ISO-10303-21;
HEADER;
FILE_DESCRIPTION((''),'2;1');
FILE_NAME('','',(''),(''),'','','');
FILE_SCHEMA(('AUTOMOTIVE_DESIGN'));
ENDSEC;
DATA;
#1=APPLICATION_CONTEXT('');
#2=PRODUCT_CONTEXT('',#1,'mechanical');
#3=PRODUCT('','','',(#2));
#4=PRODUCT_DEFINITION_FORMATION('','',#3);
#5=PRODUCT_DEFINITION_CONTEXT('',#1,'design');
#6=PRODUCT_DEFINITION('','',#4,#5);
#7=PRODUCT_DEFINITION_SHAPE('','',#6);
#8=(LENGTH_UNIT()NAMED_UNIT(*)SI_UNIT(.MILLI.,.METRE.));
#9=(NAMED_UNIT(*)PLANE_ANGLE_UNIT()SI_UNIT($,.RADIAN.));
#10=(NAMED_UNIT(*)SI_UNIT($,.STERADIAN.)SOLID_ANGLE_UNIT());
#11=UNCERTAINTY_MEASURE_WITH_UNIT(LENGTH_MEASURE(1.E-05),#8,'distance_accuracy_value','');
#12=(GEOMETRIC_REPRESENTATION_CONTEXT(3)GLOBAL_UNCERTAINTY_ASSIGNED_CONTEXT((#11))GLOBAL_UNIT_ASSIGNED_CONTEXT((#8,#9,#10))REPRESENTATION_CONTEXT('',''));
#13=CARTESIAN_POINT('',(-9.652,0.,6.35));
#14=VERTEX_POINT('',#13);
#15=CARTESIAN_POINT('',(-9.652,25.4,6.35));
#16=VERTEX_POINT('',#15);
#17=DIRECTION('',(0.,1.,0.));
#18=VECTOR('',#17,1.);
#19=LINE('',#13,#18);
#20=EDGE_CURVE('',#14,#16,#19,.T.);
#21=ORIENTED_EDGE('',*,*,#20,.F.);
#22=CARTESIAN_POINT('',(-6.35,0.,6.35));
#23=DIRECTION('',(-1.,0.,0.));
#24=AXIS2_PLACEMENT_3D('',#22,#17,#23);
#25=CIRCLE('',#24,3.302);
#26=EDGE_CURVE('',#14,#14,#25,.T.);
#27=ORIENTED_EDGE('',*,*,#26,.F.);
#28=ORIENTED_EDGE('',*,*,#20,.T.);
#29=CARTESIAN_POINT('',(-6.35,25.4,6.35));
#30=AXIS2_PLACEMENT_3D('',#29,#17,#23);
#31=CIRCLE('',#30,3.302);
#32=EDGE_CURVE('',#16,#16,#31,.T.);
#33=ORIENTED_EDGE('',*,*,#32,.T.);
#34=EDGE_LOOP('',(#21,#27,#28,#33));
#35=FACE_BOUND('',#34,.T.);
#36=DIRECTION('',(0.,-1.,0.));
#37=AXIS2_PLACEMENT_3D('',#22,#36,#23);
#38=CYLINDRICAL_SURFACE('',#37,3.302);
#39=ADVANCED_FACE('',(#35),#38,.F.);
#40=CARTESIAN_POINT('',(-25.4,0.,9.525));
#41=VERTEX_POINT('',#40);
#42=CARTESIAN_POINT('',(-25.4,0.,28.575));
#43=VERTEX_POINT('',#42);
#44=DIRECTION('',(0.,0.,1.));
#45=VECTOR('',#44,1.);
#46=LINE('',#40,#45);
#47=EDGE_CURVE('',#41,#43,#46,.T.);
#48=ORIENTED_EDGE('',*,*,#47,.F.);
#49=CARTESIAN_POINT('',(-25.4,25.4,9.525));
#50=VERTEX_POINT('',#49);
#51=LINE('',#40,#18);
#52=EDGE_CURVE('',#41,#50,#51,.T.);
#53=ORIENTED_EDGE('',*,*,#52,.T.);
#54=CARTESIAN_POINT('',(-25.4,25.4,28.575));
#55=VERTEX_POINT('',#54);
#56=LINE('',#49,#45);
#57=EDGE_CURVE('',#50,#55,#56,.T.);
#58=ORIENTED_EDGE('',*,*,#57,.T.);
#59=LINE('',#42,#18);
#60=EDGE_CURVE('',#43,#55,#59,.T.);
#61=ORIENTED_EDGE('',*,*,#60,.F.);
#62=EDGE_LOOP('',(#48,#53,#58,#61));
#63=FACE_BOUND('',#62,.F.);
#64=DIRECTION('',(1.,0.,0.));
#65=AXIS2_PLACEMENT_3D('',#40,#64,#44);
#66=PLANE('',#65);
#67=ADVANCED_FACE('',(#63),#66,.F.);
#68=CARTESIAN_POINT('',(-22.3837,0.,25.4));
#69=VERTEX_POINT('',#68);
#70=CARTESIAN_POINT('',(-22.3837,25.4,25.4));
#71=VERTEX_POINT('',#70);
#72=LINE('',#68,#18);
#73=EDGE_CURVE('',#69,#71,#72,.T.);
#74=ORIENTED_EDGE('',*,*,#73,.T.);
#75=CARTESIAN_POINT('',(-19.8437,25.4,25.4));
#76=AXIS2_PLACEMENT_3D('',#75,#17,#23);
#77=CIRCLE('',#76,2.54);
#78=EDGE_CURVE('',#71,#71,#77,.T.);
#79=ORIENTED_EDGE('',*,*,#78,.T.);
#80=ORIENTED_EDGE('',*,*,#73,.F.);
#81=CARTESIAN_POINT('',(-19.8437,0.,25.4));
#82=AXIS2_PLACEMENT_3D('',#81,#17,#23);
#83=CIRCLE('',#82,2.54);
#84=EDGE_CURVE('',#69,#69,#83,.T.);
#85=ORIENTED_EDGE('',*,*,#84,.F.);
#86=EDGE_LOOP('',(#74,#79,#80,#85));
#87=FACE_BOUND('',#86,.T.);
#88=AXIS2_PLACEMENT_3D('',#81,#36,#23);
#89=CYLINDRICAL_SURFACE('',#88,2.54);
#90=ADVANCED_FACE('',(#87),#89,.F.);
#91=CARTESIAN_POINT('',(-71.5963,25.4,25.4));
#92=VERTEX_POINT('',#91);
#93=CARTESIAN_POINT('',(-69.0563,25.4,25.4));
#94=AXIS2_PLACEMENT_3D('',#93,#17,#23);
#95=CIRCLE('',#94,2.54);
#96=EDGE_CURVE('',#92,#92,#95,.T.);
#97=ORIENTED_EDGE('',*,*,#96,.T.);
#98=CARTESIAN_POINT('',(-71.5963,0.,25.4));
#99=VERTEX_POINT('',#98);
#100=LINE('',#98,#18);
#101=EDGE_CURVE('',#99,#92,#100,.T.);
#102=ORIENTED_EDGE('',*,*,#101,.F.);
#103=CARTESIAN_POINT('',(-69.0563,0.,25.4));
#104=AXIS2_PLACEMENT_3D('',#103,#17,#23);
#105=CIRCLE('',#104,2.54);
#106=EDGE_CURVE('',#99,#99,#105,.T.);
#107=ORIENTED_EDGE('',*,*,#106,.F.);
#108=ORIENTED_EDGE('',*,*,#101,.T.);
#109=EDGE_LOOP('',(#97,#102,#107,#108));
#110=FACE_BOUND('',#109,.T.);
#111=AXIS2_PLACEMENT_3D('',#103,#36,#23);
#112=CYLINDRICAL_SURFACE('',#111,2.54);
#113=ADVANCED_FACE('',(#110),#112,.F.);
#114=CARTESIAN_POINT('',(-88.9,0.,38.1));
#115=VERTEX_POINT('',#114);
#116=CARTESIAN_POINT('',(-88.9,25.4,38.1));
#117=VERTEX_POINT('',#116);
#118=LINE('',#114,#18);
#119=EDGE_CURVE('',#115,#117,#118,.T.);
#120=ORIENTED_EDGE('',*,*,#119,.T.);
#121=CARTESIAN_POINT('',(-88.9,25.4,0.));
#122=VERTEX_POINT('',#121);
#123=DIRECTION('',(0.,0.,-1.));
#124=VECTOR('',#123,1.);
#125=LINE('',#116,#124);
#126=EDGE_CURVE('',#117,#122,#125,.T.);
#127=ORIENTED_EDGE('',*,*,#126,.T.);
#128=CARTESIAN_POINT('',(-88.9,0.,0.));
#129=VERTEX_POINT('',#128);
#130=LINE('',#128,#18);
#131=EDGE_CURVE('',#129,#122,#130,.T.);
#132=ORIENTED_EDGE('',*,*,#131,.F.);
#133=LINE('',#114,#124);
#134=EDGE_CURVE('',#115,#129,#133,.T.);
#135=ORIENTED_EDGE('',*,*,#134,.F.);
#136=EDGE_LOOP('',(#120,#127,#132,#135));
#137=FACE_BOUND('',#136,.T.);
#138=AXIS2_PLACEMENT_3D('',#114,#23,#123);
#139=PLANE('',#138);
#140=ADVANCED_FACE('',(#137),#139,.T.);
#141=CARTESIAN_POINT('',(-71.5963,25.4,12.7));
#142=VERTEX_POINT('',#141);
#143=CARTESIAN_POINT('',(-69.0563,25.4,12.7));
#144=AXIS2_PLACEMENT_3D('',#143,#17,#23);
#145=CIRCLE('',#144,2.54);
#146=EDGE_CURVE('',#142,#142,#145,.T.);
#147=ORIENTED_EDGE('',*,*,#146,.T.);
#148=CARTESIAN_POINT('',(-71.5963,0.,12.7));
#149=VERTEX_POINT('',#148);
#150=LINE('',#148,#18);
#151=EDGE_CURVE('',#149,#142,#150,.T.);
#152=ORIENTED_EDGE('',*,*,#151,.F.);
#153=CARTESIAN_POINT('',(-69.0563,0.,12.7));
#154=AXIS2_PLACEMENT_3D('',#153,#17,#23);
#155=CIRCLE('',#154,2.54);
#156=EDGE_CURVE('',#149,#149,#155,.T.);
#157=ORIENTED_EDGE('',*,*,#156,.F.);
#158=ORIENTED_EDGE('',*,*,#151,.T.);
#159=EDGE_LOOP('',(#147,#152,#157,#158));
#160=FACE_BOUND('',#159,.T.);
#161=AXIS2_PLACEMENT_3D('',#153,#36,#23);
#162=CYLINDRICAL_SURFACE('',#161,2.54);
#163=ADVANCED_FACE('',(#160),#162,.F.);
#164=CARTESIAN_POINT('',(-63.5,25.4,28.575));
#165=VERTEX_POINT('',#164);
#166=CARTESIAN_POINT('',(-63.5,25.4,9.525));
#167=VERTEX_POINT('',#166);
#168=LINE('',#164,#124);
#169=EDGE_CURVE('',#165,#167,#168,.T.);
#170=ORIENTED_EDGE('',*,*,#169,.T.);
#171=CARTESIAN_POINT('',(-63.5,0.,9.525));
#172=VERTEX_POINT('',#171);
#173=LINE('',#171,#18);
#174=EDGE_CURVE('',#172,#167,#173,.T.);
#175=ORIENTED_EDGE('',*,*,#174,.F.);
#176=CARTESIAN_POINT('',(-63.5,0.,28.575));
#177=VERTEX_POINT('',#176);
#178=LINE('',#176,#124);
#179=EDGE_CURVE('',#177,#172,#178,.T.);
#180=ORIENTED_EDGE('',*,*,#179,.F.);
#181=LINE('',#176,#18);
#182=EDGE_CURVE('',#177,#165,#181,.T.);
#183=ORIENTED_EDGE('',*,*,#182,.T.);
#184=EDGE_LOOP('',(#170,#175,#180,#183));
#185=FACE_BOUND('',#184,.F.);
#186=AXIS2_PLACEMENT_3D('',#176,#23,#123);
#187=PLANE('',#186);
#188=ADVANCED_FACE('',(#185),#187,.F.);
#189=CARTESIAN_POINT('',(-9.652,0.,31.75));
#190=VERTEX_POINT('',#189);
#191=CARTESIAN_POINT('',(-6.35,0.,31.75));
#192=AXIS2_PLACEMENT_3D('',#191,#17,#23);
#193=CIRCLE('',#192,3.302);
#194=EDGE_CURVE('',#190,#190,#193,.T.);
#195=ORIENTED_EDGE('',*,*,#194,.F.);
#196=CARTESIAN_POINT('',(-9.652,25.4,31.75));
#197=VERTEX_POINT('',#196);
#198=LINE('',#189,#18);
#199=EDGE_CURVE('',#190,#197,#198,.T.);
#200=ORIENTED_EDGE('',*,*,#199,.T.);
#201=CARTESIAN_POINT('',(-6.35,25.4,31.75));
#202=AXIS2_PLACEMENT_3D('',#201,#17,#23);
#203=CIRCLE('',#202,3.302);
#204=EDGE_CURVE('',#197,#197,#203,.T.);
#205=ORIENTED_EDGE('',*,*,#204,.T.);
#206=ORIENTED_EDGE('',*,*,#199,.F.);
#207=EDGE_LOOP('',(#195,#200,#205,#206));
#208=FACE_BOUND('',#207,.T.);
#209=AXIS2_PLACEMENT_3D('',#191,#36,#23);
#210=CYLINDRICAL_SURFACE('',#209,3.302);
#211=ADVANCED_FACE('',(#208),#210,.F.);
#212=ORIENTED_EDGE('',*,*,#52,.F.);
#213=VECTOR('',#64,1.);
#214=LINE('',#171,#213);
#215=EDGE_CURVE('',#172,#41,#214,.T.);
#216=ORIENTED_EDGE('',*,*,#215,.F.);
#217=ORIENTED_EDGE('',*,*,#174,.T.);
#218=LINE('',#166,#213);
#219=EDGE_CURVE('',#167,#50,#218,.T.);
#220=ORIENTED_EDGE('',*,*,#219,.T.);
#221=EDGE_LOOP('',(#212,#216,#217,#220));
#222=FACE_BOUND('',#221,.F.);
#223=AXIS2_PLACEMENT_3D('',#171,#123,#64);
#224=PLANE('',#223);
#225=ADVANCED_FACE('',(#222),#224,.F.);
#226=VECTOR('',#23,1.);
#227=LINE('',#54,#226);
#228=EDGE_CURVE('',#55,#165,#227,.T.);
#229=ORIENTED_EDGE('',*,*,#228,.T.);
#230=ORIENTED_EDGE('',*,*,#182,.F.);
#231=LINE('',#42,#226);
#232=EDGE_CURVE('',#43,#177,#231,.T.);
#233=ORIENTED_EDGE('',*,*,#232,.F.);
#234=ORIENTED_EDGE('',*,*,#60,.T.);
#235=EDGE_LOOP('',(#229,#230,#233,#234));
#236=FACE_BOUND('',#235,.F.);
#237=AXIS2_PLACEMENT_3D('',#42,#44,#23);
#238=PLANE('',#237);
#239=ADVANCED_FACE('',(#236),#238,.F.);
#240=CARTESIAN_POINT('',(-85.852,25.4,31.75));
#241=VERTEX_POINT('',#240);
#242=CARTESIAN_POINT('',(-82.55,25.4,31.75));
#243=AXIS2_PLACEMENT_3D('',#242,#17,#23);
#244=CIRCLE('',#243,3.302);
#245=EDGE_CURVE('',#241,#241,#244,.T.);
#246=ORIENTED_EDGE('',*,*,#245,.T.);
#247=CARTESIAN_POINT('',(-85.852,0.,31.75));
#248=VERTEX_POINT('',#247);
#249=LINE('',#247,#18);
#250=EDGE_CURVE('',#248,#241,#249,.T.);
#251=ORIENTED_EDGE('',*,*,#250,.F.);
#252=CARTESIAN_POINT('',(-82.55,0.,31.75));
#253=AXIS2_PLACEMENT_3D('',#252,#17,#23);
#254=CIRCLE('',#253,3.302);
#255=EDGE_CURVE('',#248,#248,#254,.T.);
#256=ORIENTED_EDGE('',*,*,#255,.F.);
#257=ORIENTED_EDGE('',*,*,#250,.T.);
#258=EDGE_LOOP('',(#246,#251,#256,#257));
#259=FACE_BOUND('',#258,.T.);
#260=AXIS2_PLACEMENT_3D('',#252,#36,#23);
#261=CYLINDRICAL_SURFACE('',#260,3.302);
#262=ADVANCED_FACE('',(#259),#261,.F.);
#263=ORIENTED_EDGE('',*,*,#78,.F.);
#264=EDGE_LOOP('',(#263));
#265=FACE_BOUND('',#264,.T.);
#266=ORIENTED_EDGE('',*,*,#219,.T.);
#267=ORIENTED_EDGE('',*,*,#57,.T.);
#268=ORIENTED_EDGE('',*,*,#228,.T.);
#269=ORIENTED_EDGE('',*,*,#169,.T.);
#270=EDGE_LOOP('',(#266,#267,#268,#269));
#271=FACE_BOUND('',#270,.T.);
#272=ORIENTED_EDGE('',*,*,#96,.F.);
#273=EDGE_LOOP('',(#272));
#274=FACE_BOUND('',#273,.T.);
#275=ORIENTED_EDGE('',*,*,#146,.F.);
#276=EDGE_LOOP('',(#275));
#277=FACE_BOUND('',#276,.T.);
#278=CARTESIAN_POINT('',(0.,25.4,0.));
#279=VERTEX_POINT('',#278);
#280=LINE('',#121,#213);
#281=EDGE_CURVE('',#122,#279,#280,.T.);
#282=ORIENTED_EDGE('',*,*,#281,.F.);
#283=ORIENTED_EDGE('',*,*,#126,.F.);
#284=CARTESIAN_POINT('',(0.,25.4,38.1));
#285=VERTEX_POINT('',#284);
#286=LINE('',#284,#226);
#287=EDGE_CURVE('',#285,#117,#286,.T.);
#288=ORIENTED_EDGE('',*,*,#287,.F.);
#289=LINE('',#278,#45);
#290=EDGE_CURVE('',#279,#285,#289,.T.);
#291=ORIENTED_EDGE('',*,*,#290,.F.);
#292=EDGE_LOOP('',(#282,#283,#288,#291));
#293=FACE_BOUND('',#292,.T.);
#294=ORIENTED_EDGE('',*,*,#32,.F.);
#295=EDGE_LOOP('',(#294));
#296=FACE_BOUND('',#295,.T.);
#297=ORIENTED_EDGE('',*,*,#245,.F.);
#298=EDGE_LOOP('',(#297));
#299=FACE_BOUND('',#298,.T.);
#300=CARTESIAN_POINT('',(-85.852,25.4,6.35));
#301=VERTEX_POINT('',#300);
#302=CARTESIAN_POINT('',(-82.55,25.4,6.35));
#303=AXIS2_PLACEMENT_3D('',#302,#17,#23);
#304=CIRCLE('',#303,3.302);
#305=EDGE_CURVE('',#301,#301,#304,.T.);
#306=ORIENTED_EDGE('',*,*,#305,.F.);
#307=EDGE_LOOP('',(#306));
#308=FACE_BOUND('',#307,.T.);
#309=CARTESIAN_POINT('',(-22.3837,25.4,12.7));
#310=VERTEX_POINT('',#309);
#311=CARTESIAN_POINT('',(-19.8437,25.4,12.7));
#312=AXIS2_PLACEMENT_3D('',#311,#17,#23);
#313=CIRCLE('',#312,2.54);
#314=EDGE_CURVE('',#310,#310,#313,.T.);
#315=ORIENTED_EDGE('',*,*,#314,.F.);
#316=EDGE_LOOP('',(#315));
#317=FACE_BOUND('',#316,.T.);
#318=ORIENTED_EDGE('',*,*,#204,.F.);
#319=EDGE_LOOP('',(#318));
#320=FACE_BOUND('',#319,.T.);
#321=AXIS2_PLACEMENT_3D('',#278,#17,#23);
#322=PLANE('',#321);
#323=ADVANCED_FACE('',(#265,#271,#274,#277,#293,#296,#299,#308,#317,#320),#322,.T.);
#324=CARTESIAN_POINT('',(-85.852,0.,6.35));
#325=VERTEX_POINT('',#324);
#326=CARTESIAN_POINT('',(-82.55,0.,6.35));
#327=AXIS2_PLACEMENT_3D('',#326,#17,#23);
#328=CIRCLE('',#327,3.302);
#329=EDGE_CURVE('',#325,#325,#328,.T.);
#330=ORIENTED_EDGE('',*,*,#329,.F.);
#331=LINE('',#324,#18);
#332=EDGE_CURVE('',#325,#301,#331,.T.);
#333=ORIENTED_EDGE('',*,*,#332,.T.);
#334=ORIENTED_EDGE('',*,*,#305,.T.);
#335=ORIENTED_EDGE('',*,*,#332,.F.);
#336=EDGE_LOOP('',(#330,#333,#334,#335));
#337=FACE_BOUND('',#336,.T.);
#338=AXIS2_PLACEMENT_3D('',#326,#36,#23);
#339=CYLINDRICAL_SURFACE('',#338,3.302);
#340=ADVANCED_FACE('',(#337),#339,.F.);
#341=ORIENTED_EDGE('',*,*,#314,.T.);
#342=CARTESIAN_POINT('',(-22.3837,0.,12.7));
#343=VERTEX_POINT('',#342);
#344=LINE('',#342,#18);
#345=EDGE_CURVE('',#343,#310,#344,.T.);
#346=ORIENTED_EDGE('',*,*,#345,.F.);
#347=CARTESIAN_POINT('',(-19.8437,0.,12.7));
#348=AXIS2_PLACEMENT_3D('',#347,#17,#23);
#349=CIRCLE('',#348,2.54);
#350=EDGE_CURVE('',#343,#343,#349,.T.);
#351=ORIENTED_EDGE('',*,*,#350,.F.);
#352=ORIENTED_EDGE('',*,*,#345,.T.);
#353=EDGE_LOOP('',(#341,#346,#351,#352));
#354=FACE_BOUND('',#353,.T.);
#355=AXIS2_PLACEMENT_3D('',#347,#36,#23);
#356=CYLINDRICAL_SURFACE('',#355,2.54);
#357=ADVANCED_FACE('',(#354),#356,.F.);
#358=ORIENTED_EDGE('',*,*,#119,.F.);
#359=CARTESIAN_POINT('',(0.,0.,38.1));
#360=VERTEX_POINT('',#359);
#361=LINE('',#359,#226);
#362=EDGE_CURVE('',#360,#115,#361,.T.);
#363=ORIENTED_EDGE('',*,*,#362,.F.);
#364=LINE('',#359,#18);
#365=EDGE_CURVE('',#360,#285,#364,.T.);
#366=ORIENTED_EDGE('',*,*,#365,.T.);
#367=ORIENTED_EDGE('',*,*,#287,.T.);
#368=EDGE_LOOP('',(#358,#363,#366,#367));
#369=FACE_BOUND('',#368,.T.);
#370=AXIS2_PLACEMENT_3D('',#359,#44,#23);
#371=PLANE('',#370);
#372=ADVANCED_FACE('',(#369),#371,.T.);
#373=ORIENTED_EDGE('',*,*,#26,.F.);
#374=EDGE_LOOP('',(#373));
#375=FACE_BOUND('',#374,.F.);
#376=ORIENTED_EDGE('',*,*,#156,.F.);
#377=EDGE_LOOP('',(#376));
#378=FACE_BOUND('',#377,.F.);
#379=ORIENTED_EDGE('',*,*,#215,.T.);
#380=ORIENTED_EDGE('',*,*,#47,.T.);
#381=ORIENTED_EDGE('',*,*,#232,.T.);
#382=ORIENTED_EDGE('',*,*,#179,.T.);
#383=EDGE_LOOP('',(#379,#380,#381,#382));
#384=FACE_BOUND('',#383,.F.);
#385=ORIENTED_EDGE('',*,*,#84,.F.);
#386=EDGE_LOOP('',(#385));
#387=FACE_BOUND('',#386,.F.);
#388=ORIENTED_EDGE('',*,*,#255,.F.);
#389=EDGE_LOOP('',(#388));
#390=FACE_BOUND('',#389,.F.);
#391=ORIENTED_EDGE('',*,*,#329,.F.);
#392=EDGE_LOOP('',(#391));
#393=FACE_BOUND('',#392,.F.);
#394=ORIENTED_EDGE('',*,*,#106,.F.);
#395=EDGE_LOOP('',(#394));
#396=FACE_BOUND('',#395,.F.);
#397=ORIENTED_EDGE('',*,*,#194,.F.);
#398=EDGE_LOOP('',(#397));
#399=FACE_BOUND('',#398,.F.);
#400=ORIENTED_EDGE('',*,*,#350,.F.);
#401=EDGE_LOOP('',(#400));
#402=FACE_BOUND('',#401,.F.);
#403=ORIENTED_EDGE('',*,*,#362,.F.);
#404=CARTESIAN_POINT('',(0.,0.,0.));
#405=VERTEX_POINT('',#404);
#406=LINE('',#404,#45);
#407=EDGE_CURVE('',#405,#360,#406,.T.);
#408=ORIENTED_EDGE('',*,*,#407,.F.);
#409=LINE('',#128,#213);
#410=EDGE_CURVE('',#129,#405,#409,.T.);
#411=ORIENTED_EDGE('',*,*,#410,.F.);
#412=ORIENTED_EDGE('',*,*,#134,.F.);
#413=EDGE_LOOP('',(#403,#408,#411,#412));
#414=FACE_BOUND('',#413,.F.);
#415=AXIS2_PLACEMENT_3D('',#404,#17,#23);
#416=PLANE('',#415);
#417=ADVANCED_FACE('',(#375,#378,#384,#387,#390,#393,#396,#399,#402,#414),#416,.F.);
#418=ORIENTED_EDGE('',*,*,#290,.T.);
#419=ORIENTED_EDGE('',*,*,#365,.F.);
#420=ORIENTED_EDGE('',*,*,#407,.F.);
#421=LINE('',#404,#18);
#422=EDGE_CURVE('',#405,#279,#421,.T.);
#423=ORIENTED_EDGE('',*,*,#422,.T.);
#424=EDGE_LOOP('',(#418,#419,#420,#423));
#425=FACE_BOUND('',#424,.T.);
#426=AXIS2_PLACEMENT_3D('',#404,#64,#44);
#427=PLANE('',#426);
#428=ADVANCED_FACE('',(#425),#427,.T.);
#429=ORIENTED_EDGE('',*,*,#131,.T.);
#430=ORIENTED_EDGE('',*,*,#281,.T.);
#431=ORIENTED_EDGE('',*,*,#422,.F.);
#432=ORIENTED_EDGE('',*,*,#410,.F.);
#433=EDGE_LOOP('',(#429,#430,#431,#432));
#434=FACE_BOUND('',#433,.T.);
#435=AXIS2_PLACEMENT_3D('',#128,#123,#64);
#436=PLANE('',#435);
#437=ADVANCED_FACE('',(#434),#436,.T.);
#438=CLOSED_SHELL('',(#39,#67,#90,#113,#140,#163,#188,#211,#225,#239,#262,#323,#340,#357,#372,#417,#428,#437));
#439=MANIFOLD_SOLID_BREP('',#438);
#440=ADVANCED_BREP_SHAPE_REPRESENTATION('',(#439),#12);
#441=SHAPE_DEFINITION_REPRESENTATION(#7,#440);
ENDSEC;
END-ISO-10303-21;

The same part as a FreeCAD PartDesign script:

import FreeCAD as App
import Part
import Sketcher
Q = App.Units.Quantity

doc = App.newDocument("Part")
body = doc.addObject("PartDesign::Body", "Body")

# Sketch on XZ plane
sketch1 = body.newObject("Sketcher::SketchObject", "Sketch")
sketch1.AttachmentSupport = (doc.getObject("XZ_Plane"), [""])
sketch1.MapMode = "FlatFace"
sketch1.addGeometry([
    Part.LineSegment(App.Vector(0, 38.1, 0), App.Vector(0, 0, 0)),  # 0
    Part.LineSegment(App.Vector(0, 0, 0), App.Vector(-88.9, 0, 0)),  # 1
    Part.LineSegment(App.Vector(-88.9, 0, 0), App.Vector(-88.9, 38.1, 0)),  # 2
    Part.LineSegment(App.Vector(-88.9, 38.1, 0), App.Vector(0, 38.1, 0)),  # 3
    Part.Circle(App.Vector(-6.35, 6.35, 0), App.Vector(0, 0, 1), 3.302),  # 4
    Part.Circle(App.Vector(-19.8437, 12.7, 0), App.Vector(0, 0, 1), 2.54),  # 5
    Part.Circle(App.Vector(-82.55, 6.35, 0), App.Vector(0, 0, 1), 3.302),  # 6
    Part.Circle(App.Vector(-69.0563, 12.7, 0), App.Vector(0, 0, 1), 2.54),  # 7
    Part.Circle(App.Vector(-19.8437, 25.4, 0), App.Vector(0, 0, 1), 2.54),  # 8
    Part.Circle(App.Vector(-6.35, 31.75, 0), App.Vector(0, 0, 1), 3.302),  # 9
    Part.LineSegment(App.Vector(-25.4, 28.575, 0), App.Vector(-63.5, 28.575, 0)),  # 10
    Part.LineSegment(App.Vector(-63.5, 28.575, 0), App.Vector(-63.5, 9.525, 0)),  # 11
    Part.LineSegment(App.Vector(-63.5, 9.525, 0), App.Vector(-25.4, 9.525, 0)),  # 12
    Part.LineSegment(App.Vector(-25.4, 9.525, 0), App.Vector(-25.4, 28.575, 0)),  # 13
    Part.Circle(App.Vector(-69.0563, 25.4, 0), App.Vector(0, 0, 1), 2.54),  # 14
    Part.Circle(App.Vector(-82.55, 31.75, 0), App.Vector(0, 0, 1), 3.302),  # 15
], False)
sketch1.addConstraint([
    Sketcher.Constraint("Coincident", 0, 2, 1, 1),
    Sketcher.Constraint("Coincident", 1, 2, 2, 1),
    Sketcher.Constraint("Coincident", 2, 2, 3, 1),
    Sketcher.Constraint("Coincident", 3, 2, 0, 1),
    Sketcher.Constraint("Coincident", 10, 2, 11, 1),
    Sketcher.Constraint("Coincident", 11, 2, 12, 1),
    Sketcher.Constraint("Coincident", 12, 2, 13, 1),
    Sketcher.Constraint("Coincident", 13, 2, 10, 1),
    Sketcher.Constraint("Vertical", 0),
    Sketcher.Constraint("Horizontal", 1),
    Sketcher.Constraint("Vertical", 2),
    Sketcher.Constraint("Horizontal", 3),
    Sketcher.Constraint("Horizontal", 10),
    Sketcher.Constraint("Vertical", 11),
    Sketcher.Constraint("Horizontal", 12),
    Sketcher.Constraint("Vertical", 13),
    Sketcher.Constraint("Coincident", 0, 2, -1, 1),
    Sketcher.Constraint("Equal", 4, 6),
    Sketcher.Constraint("Equal", 5, 7),
    Sketcher.Constraint("Equal", 7, 8),
    Sketcher.Constraint("Equal", 6, 9),
    Sketcher.Constraint("Equal", 8, 14),
    Sketcher.Constraint("Equal", 9, 15),
    Sketcher.Constraint("Horizontal", 4, 3, 6, 3),
    Sketcher.Constraint("Horizontal", 5, 3, 7, 3),
    Sketcher.Constraint("Horizontal", 8, 3, 14, 3),
    Sketcher.Constraint("Horizontal", 9, 3, 15, 3),
    Sketcher.Constraint("Vertical", 5, 3, 8, 3),
    Sketcher.Constraint("Vertical", 4, 3, 9, 3),
    Sketcher.Constraint("Vertical", 7, 3, 14, 3),
    Sketcher.Constraint("Vertical", 6, 3, 15, 3),
    Sketcher.Constraint("Equal", 12, 0),
    Sketcher.Constraint("Diameter", 5, Q("0.2 in")),
    Sketcher.Constraint("Diameter", 4, Q("0.26 in")),
    Sketcher.Constraint("DistanceX", 1, 2, 1, 1, Q("3.5 in")),
    Sketcher.Constraint("DistanceX", 10, 2, 10, 1, Q("1.5 in")),
    Sketcher.Constraint("DistanceY", -1, 1, 8, 3, Q("1 in")),
    Sketcher.Constraint("DistanceX", 12, 2, -1, 1, Q("1 in")),
    Sketcher.Constraint("DistanceX", 6, 3, 4, 3, Q("3 in")),
    Sketcher.Constraint("DistanceY", 4, 3, 9, 3, Q("1 in")),
    Sketcher.Constraint("DistanceY", 7, 3, 2, 2, Q("1 in")),
    Sketcher.Constraint("DistanceY", 11, 2, 11, 1, Q("0.75 in")),
    Sketcher.Constraint("DistanceX", 4, 3, -1, 1, Q("0.25 in")),
    Sketcher.Constraint("DistanceY", -1, 1, 4, 3, Q("0.25 in")),
    Sketcher.Constraint("DistanceX", 5, 3, -1, 1, Q("0.781248 in")),
    Sketcher.Constraint("DistanceY", -1, 1, 11, 2, Q("0.375 in")),
    Sketcher.Constraint("DistanceX", 7, 3, 5, 3, Q("1.9375 in")),
])
pad1 = body.newObject("PartDesign::Pad", "Pad")
pad1.Profile = sketch1
pad1.Length = Q("1 in")
pad1.Reversed = True

doc.recompute()
